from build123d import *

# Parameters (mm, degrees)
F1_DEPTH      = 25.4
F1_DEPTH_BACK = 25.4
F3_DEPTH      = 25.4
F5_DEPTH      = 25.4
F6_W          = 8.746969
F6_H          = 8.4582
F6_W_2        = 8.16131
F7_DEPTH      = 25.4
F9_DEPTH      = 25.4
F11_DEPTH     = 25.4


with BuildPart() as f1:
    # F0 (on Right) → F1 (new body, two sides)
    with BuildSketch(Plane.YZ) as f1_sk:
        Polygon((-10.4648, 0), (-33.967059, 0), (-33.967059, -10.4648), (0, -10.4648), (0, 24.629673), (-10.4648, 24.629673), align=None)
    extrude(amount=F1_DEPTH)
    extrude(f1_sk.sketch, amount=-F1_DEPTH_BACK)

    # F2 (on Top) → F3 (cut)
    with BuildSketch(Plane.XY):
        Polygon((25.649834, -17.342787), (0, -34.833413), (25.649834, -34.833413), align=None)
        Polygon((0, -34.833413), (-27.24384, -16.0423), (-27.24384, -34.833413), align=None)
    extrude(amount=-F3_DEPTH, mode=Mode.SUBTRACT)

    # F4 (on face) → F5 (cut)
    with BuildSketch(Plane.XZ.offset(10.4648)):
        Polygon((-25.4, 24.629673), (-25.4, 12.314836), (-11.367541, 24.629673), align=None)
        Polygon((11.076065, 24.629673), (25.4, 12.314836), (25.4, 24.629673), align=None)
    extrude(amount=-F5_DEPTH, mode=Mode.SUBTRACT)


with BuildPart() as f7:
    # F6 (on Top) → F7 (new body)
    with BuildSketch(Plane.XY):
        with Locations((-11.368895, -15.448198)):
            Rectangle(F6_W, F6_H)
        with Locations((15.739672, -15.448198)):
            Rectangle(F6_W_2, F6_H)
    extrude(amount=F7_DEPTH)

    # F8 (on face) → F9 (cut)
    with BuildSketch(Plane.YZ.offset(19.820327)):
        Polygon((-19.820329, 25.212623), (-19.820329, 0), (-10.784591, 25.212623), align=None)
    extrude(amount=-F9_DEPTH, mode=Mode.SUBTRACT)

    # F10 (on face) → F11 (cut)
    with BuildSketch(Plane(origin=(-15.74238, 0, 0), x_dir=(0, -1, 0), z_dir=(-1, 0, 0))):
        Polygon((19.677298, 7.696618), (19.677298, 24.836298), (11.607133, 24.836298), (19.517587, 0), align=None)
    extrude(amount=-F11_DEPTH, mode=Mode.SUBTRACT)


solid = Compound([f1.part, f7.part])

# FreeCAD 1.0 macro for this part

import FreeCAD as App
import Part
import Sketcher

V = App.Vector
Q = App.Units.Quantity

doc = App.newDocument("Part")
params = doc.addObject("Spreadsheet::Sheet", "Params")
for row, (alias, value) in enumerate([
    ("sketch1_width", "0.412 in"),
    ("pad1_length", "1 in"),
    ("pad1_length2", "1 in"),
    ("pocket1_length", "1 in"),
    ("pocket2_length", "1 in"),
    ("sketch4_height", "0.333 in"),
    ("pad2_length", "1 in"),
    ("pocket3_length", "1 in"),
    ("pocket4_length", "1 in"),
], start=1):
    params.set(f"A{row}", alias)
    params.set(f"B{row}", "=" + value)
    params.setAlias(f"B{row}", alias)

body = doc.addObject("PartDesign::Body", "Body")

# Sketch on YZ plane
sketch1 = doc.addObject("Sketcher::SketchObject", "Sketch")
body.addObject(sketch1)
sketch1.AttachmentSupport = (doc.YZ_Plane, [""])
sketch1.MapMode = "FlatFace"
sketch1.addGeometry([
    Part.LineSegment(V(-10, 0, 0), V(-34, 0, 0)),  # 0
    Part.LineSegment(V(-34, 0, 0), V(-34, -10, 0)),  # 1
    Part.LineSegment(V(-34, -10, 0), V(0, -10, 0)),  # 2
    Part.LineSegment(V(0, -10, 0), V(0, 25, 0)),  # 3
    Part.LineSegment(V(0, 25, 0), V(-10, 25, 0)),  # 4
    Part.LineSegment(V(-10, 25, 0), V(-10, 0, 0)),  # 5
], False)
sketch1.addConstraint([
    Sketcher.Constraint("Coincident", 0, 2, 1, 1),
    Sketcher.Constraint("Coincident", 1, 2, 2, 1),
    Sketcher.Constraint("Coincident", 2, 2, 3, 1),
    Sketcher.Constraint("Coincident", 3, 2, 4, 1),
    Sketcher.Constraint("Coincident", 4, 2, 5, 1),
    Sketcher.Constraint("Coincident", 5, 2, 0, 1),
    Sketcher.Constraint("Horizontal", 0),
    Sketcher.Constraint("Vertical", 1),
    Sketcher.Constraint("Horizontal", 2),
    Sketcher.Constraint("Vertical", 3),
    Sketcher.Constraint("Horizontal", 4),
    Sketcher.Constraint("Vertical", 5),
    Sketcher.Constraint("PointOnObject", 0, 2, -1),
    Sketcher.Constraint("PointOnObject", 2, 2, -2),
    Sketcher.Constraint("Equal", 4, 1),
    Sketcher.Constraint("DistanceX", 4, 2, 4, 1, Q("0.412 in")),
    Sketcher.Constraint("DistanceX", 0, 2, 0, 1, Q("23.502259 mm")),
    Sketcher.Constraint("DistanceY", 3, 1, 3, 2, Q("35.094473 mm")),
])
sketch1.setExpression("Constraints[15]", "Params.sketch1_width")
pad1 = doc.addObject("PartDesign::Pad", "Pad")
body.addObject(pad1)
pad1.Profile = sketch1
pad1.Type = "TwoLengths"
pad1.setExpression("Length", "Params.pad1_length")
pad1.setExpression("Length2", "Params.pad1_length2")

# Sketch on XY plane
sketch2 = doc.addObject("Sketcher::SketchObject", "Sketch001")
body.addObject(sketch2)
sketch2.AttachmentSupport = (doc.XY_Plane, [""])
sketch2.MapMode = "FlatFace"
sketch2.addGeometry([
    Part.LineSegment(V(26, -17, 0), V(0, -35, 0)),  # 0
    Part.LineSegment(V(0, -35, 0), V(26, -35, 0)),  # 1
    Part.LineSegment(V(26, -35, 0), V(26, -17, 0)),  # 2
    Part.LineSegment(V(0, -35, 0), V(-27, -16, 0)),  # 3
    Part.LineSegment(V(-27, -16, 0), V(-27, -35, 0)),  # 4
    Part.LineSegment(V(-27, -35, 0), V(0, -35, 0)),  # 5
], False)
sketch2.addConstraint([
    Sketcher.Constraint("Coincident", 0, 2, 1, 1),
    Sketcher.Constraint("Coincident", 1, 2, 2, 1),
    Sketcher.Constraint("Coincident", 2, 2, 0, 1),
    Sketcher.Constraint("Coincident", 3, 2, 4, 1),
    Sketcher.Constraint("Coincident", 4, 2, 5, 1),
    Sketcher.Constraint("Coincident", 5, 2, 3, 1),
    Sketcher.Constraint("Horizontal", 1),
    Sketcher.Constraint("Vertical", 2),
    Sketcher.Constraint("Vertical", 4),
    Sketcher.Constraint("Horizontal", 5),
    Sketcher.Constraint("Coincident", 5, 2, 0, 2),
    Sketcher.Constraint("PointOnObject", 0, 2, -2),
    Sketcher.Constraint("DistanceX", 5, 1, 5, 2, Q("27.24384 mm")),
    Sketcher.Constraint("DistanceY", 3, 2, -1, 1, Q("16.0423 mm")),
    Sketcher.Constraint("Distance", 3, Q("33.095812 mm")),
    Sketcher.Constraint("DistanceX", 1, 1, 1, 2, Q("25.649834 mm")),
    Sketcher.Constraint("DistanceY", 2, 1, 2, 2, Q("17.490626 mm")),
])
pocket1 = doc.addObject("PartDesign::Pocket", "Pocket")
body.addObject(pocket1)
pocket1.Profile = sketch2
pocket1.setExpression("Length", "Params.pocket1_length")

# Sketch on XZ plane
sketch3 = doc.addObject("Sketcher::SketchObject", "Sketch002")
body.addObject(sketch3)
sketch3.AttachmentSupport = (doc.XZ_Plane, [""])
sketch3.MapMode = "FlatFace"
sketch3.AttachmentOffset = App.Placement(V(0, 0, 0.412 * 25.4), App.Rotation())
sketch3.addGeometry([
    Part.LineSegment(V(-25, 25, 0), V(-25, 12, 0)),  # 0
    Part.LineSegment(V(-25, 12, 0), V(-11, 25, 0)),  # 1
    Part.LineSegment(V(-11, 25, 0), V(-25, 25, 0)),  # 2
    Part.LineSegment(V(11, 25, 0), V(25, 12, 0)),  # 3
    Part.LineSegment(V(25, 12, 0), V(25, 25, 0)),  # 4
    Part.LineSegment(V(25, 25, 0), V(11, 25, 0)),  # 5
], False)
sketch3.addConstraint([
    Sketcher.Constraint("Coincident", 0, 2, 1, 1),
    Sketcher.Constraint("Coincident", 1, 2, 2, 1),
    Sketcher.Constraint("Coincident", 2, 2, 0, 1),
    Sketcher.Constraint("Coincident", 3, 2, 4, 1),
    Sketcher.Constraint("Coincident", 4, 2, 5, 1),
    Sketcher.Constraint("Coincident", 5, 2, 3, 1),
    Sketcher.Constraint("Vertical", 0),
    Sketcher.Constraint("Horizontal", 2),
    Sketcher.Constraint("Vertical", 4),
    Sketcher.Constraint("Horizontal", 5),
    Sketcher.Constraint("Symmetric", 0, 2, 3, 2, -2),
    Sketcher.Constraint("Horizontal", 2, 2, 4, 2),
    Sketcher.Constraint("DistanceX", 0, 2, -1, 1, Q("1 in")),
    Sketcher.Constraint("Distance", 1, Q("18.669899 mm")),
    Sketcher.Constraint("DistanceX", 2, 2, 2, 1, Q("14.032459 mm")),
    Sketcher.Constraint("DistanceX", 5, 2, 5, 1, Q("14.323935 mm")),
    Sketcher.Constraint("DistanceY", -1, 1, 0, 2, Q("12.314836 mm")),
])
pocket2 = doc.addObject("PartDesign::Pocket", "Pocket001")
body.addObject(pocket2)
pocket2.Profile = sketch3
pocket2.setExpression("Length", "Params.pocket2_length")
body2 = doc.addObject("PartDesign::Body", "Body001")
body2.AllowCompound = True

# Sketch on XY plane
sketch4 = doc.addObject("Sketcher::SketchObject", "Sketch003")
body2.addObject(sketch4)
sketch4.AttachmentSupport = (doc.getObject("XY_Plane001"), [""])
sketch4.MapMode = "FlatFace"
sketch4.addGeometry([
    Part.LineSegment(V(-16, -11, 0), V(-16, -20, 0)),  # 0
    Part.LineSegment(V(-16, -20, 0), V(-7, -20, 0)),  # 1
    Part.LineSegment(V(-7, -20, 0), V(-7, -11, 0)),  # 2
    Part.LineSegment(V(-7, -11, 0), V(-16, -11, 0)),  # 3
    Part.LineSegment(V(12, -11, 0), V(12, -20, 0)),  # 4
    Part.LineSegment(V(12, -20, 0), V(20, -20, 0)),  # 5
    Part.LineSegment(V(20, -20, 0), V(20, -11, 0)),  # 6
    Part.LineSegment(V(20, -11, 0), V(12, -11, 0)),  # 7
], False)
sketch4.addConstraint([
    Sketcher.Constraint("Coincident", 0, 2, 1, 1),
    Sketcher.Constraint("Coincident", 1, 2, 2, 1),
    Sketcher.Constraint("Coincident", 2, 2, 3, 1),
    Sketcher.Constraint("Coincident", 3, 2, 0, 1),
    Sketcher.Constraint("Coincident", 4, 2, 5, 1),
    Sketcher.Constraint("Coincident", 5, 2, 6, 1),
    Sketcher.Constraint("Coincident", 6, 2, 7, 1),
    Sketcher.Constraint("Coincident", 7, 2, 4, 1),
    Sketcher.Constraint("Vertical", 0),
    Sketcher.Constraint("Horizontal", 1),
    Sketcher.Constraint("Vertical", 2),
    Sketcher.Constraint("Horizontal", 3),
    Sketcher.Constraint("Vertical", 4),
    Sketcher.Constraint("Horizontal", 5),
    Sketcher.Constraint("Vertical", 6),
    Sketcher.Constraint("Horizontal", 7),
    Sketcher.Constraint("Horizontal", 1, 2, 4, 2),
    Sketcher.Constraint("Horizontal", 3, 2, 6, 2),
    Sketcher.Constraint("DistanceY", 0, 2, 0, 1, Q("0.333 in")),
    Sketcher.Constraint("DistanceX", 1, 1, 1, 2, Q("8.746969 mm")),
    Sketcher.Constraint("DistanceX", 5, 1, 5, 2, Q("8.16131 mm")),
    Sketcher.Constraint("DistanceY", 0, 2, -1, 1, Q("19.677298 mm")),
    Sketcher.Constraint("DistanceX", 0, 2, -1, 1, Q("15.74238 mm")),
    Sketcher.Constraint("DistanceX", -1, 1, 4, 2, Q("11.659017 mm")),
])
sketch4.setExpression("Constraints[18]", "Params.sketch4_height")
pad2 = doc.addObject("PartDesign::Pad", "Pad001")
body2.addObject(pad2)
pad2.Profile = sketch4
pad2.setExpression("Length", "Params.pad2_length")

# Sketch on YZ plane
sketch5 = doc.addObject("Sketcher::SketchObject", "Sketch004")
body2.addObject(sketch5)
sketch5.AttachmentSupport = (doc.getObject("YZ_Plane001"), [""])
sketch5.MapMode = "FlatFace"
sketch5.AttachmentOffset = App.Placement(V(0, 0, 19.820327), App.Rotation())
sketch5.addGeometry([
    Part.LineSegment(V(-20, 25, 0), V(-20, 0, 0)),
    Part.LineSegment(V(-20, 0, 0), V(-11, 25, 0)),
    Part.LineSegment(V(-11, 25, 0), V(-20, 25, 0)),
], False)
sketch5.addConstraint([
    Sketcher.Constraint("Coincident", 0, 2, 1, 1),
    Sketcher.Constraint("Coincident", 1, 2, 2, 1),
    Sketcher.Constraint("Coincident", 2, 2, 0, 1),
    Sketcher.Constraint("Vertical", 0),
    Sketcher.Constraint("Horizontal", 2),
    Sketcher.Constraint("PointOnObject", 0, 2, -1),
    Sketcher.Constraint("DistanceX", 2, 2, 2, 1, Q("9.035738 mm")),
    Sketcher.Constraint("DistanceY", 0, 2, 0, 1, Q("25.212623 mm")),
    Sketcher.Constraint("DistanceX", 0, 2, -1, 1, Q("19.820329 mm")),
])
pocket3 = doc.addObject("PartDesign::Pocket", "Pocket002")
body2.addObject(pocket3)
pocket3.Profile = sketch5
pocket3.setExpression("Length", "Params.pocket3_length")

# Sketch on YZ plane
sketch6 = doc.addObject("Sketcher::SketchObject", "Sketch005")
body2.addObject(sketch6)
sketch6.AttachmentSupport = (doc.getObject("YZ_Plane001"), [""])
sketch6.MapMode = "FlatFace"
sketch6.AttachmentOffset = App.Placement(V(0, 0, -15.74238), App.Rotation())
sketch6.addGeometry([
    Part.LineSegment(V(-20, 8, 0), V(-20, 25, 0)),
    Part.LineSegment(V(-20, 25, 0), V(-12, 25, 0)),
    Part.LineSegment(V(-12, 25, 0), V(-20, 0, 0)),
    Part.LineSegment(V(-20, 0, 0), V(-20, 8, 0)),
], False)
sketch6.addConstraint([
    Sketcher.Constraint("Coincident", 0, 2, 1, 1),
    Sketcher.Constraint("Coincident", 1, 2, 2, 1),
    Sketcher.Constraint("Coincident", 2, 2, 3, 1),
    Sketcher.Constraint("Coincident", 3, 2, 0, 1),
    Sketcher.Constraint("Vertical", 0),
    Sketcher.Constraint("Horizontal", 1),
    Sketcher.Constraint("PointOnObject", 2, 2, -1),
    Sketcher.Constraint("DistanceY", 0, 1, 0, 2, Q("17.13968 mm")),
    Sketcher.Constraint("DistanceX", 0, 2, -1, 1, Q("19.677298 mm")),
    Sketcher.Constraint("Distance", 2, Q("26.065628 mm")),
    Sketcher.Constraint("DistanceX", 1, 1, 1, 2, Q("8.070165 mm")),
    Sketcher.Constraint("DistanceX", 0, 2, 2, 2, Q("0.159711 mm")),
])
pocket4 = doc.addObject("PartDesign::Pocket", "Pocket003")
body2.addObject(pocket4)
pocket4.Profile = sketch6
pocket4.setExpression("Length", "Params.pocket4_length")
pocket4.Reversed = True

doc.recompute()
